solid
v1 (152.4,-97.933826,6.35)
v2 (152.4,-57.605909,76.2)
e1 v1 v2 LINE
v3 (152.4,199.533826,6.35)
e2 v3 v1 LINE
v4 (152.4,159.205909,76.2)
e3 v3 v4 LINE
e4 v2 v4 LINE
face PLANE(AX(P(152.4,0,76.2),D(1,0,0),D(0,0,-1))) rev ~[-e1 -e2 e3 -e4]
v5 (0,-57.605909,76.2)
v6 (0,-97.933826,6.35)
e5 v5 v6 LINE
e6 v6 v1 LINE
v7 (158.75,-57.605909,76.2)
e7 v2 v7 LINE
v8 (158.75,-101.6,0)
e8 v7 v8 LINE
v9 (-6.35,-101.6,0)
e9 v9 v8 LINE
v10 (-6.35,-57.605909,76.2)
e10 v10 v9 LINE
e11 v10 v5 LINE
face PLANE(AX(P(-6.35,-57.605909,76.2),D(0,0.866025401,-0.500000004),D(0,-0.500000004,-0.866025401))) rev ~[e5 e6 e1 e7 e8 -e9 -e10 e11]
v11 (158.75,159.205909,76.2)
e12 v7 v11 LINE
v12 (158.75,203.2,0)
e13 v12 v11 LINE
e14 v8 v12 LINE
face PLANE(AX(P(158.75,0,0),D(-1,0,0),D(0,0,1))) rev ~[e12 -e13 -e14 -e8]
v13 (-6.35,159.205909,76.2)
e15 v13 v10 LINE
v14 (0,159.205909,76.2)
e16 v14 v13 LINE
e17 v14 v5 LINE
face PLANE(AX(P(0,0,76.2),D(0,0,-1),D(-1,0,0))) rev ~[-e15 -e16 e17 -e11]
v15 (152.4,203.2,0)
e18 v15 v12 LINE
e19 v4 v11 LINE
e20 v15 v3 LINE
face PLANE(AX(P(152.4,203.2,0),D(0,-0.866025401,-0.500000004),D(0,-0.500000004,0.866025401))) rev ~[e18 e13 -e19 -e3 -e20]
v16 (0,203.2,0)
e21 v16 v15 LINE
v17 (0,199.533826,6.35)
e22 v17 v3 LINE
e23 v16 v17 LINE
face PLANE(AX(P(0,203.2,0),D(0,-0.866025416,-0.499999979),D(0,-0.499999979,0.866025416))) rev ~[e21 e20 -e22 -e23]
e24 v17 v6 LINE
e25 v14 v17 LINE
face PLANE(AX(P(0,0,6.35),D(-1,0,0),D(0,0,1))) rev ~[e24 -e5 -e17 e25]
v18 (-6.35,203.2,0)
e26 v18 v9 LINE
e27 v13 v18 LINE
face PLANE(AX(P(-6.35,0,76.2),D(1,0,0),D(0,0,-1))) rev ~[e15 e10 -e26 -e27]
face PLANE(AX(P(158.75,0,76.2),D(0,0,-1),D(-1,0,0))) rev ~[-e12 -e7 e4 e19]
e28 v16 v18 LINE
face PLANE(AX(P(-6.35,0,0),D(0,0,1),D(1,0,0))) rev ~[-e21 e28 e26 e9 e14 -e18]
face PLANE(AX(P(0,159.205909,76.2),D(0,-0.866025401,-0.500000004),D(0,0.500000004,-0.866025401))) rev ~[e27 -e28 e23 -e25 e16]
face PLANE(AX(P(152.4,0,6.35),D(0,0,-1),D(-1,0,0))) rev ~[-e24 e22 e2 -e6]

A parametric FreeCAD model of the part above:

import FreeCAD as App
import Part
import Sketcher
from FreeCAD import Vector
Q = App.Units.Quantity


def add_polygon(sketch, points):
    """Adds a closed chain of lines whose ends are joined by coincident constraints."""
    first, n = sketch.GeometryCount, len(points)
    for a, b in zip(points, points[1:] + points[:1]):
        sketch.addGeometry(Part.LineSegment(App.Vector(*a, 0), App.Vector(*b, 0)), False)
    for i in range(n):
        sketch.addConstraint(Sketcher.Constraint("Coincident", first + i, 2, first + (i + 1) % n, 1))

doc = App.newDocument("Part")
body = doc.addObject("PartDesign::Body", "Body")

# Sketch on YZ plane
sketch1 = doc.addObject("Sketcher::SketchObject", "Sketch")
body.addObject(sketch1)
sketch1.AttachmentSupport = (doc.YZ_Plane, [""])
sketch1.MapMode = "FlatFace"
add_polygon(sketch1, [(0, 6), (0, 0), (203, 0), (200, 6)])  # lines 0-3
sketch1.addConstraint([
    Sketcher.Constraint("Vertical", 0),
    Sketcher.Constraint("Horizontal", 1),
    Sketcher.Constraint("Horizontal", 3),
    Sketcher.Constraint("Coincident", 0, 2, -1, 1),
    Sketcher.Constraint("DistanceX", 1, 1, 1, 2, Q("8 in")),
    Sketcher.Constraint("Angle", 2, Q("119.999999 deg")),
    Sketcher.Constraint("DistanceY", 0, 2, 0, 1, Q("0.25 in")),
])
pad1 = doc.addObject("PartDesign::Pad", "Pad")
body.addObject(pad1)
pad1.Profile = sketch1
pad1.Length = Q("6 in")

# Sketch on YZ plane
sketch2 = doc.addObject("Sketcher::SketchObject", "Sketch001")
body.addObject(sketch2)
sketch2.AttachmentSupport = (doc.YZ_Plane, [""])
sketch2.MapMode = "FlatFace"
sketch2.AttachmentOffset = App.Placement(Vector(0, 0, 6 * 25.4), App.Rotation())
add_polygon(sketch2, [(0, 0), (203, 0), (159, 76), (0, 76)])  # lines 0-3
sketch2.addConstraint([
    Sketcher.Constraint("Horizontal", 0),
    Sketcher.Constraint("Horizontal", 2),
    Sketcher.Constraint("Vertical", 3),
    Sketcher.Constraint("Coincident", 3, 2, -1, 1),
    Sketcher.Constraint("DistanceX", 0, 1, 0, 2, Q("8 in")),
    Sketcher.Constraint("DistanceY", 3, 2, 3, 1, Q("3 in")),
    Sketcher.Constraint("Angle", 1, Q("120 deg")),
])
pad2 = doc.addObject("PartDesign::Pad", "Pad001")
body.addObject(pad2)
pad2.Profile = sketch2
pad2.Length = Q("0.25 in")

# Sketch on YZ plane
sketch3 = doc.addObject("Sketcher::SketchObject", "Sketch002")
body.addObject(sketch3)
sketch3.AttachmentSupport = (doc.YZ_Plane, [""])
sketch3.MapMode = "FlatFace"
add_polygon(sketch3, [(159, 76), (203, 0), (0, 0), (0, 76)])  # lines 0-3
sketch3.addConstraint([
    Sketcher.Constraint("Horizontal", 1),
    Sketcher.Constraint("Vertical", 2),
    Sketcher.Constraint("Horizontal", 3),
    Sketcher.Constraint("Coincident", 1, 2, -1, 1),
    Sketcher.Constraint("DistanceX", 1, 2, 1, 1, Q("8 in")),
    Sketcher.Constraint("DistanceY", 2, 1, 2, 2, Q("3 in")),
    Sketcher.Constraint("Angle", 0, Q("-60 deg")),
])
pad3 = doc.addObject("PartDesign::Pad", "Pad002")
body.addObject(pad3)
pad3.Profile = sketch3
pad3.Length = Q("0.25 in")
pad3.Reversed = True

# Sketch on XZ plane
sketch4 = doc.addObject("Sketcher::SketchObject", "Sketch003")
body.addObject(sketch4)
sketch4.AttachmentSupport = (doc.XZ_Plane, [""])
sketch4.MapMode = "FlatFace"
add_polygon(sketch4, [(152, 76), (152, 6), (0, 6), (0, 76), (-6, 76), (-6, 0), (159, 0), (159, 76)])  # lines 0-7
sketch4.addConstraint([
    Sketcher.Constraint("Vertical", 0),
    Sketcher.Constraint("Horizontal", 1),
    Sketcher.Constraint("Vertical", 2),
    Sketcher.Constraint("Horizontal", 3),
    Sketcher.Constraint("Vertical", 4),
    Sketcher.Constraint("Horizontal", 5),
    Sketcher.Constraint("Vertical", 6),
    Sketcher.Constraint("Horizontal", 7),
    Sketcher.Constraint("PointOnObject", 1, 2, -2),
    Sketcher.Constraint("PointOnObject", 4, 2, -1),
    Sketcher.Constraint("Horizontal", 3, 2, 6, 2),
    Sketcher.Constraint("Equal", 3, 7),
    Sketcher.Constraint("DistanceX", 1, 2, 1, 1, Q("6 in")),
    Sketcher.Constraint("DistanceY", 4, 2, 4, 1, Q("3 in")),
    Sketcher.Constraint("DistanceX", 5, 1, 5, 2, Q("6.5 in")),
    Sketcher.Constraint("DistanceY", 0, 2, 0, 1, Q("2.75 in")),
])
pad4 = doc.addObject("PartDesign::Pad", "Pad003")
body.addObject(pad4)
pad4.Profile = sketch4
pad4.Length = Q("4 in")

# Sketch on YZ plane
sketch5 = doc.addObject("Sketcher::SketchObject", "Sketch004")
body.addObject(sketch5)
sketch5.AttachmentSupport = (doc.YZ_Plane, [""])
sketch5.MapMode = "FlatFace"
sketch5.AttachmentOffset = App.Placement(Vector(0, 0, -0.25 * 25.4), App.Rotation())
add_polygon(sketch5, [(-58, 76), (-102, 0), (-102, 76)])  # lines 0-2
sketch5.addConstraint([
    Sketcher.Constraint("Vertical", 1),
    Sketcher.Constraint("Horizontal", 2),
    Sketcher.Constraint("PointOnObject", 0, 2, -1),
    Sketcher.Constraint("DistanceY", 1, 1, 1, 2, Q("3 in")),
    Sketcher.Constraint("DistanceX", 0, 2, -1, 1, Q("4 in")),
    Sketcher.Constraint("Angle", 0, Q("-120 deg")),
])
pocket1 = doc.addObject("PartDesign::Pocket", "Pocket")
body.addObject(pocket1)
pocket1.Profile = sketch5
pocket1.Length = Q("6.5 in")
pocket1.Reversed = True

doc.recompute()
